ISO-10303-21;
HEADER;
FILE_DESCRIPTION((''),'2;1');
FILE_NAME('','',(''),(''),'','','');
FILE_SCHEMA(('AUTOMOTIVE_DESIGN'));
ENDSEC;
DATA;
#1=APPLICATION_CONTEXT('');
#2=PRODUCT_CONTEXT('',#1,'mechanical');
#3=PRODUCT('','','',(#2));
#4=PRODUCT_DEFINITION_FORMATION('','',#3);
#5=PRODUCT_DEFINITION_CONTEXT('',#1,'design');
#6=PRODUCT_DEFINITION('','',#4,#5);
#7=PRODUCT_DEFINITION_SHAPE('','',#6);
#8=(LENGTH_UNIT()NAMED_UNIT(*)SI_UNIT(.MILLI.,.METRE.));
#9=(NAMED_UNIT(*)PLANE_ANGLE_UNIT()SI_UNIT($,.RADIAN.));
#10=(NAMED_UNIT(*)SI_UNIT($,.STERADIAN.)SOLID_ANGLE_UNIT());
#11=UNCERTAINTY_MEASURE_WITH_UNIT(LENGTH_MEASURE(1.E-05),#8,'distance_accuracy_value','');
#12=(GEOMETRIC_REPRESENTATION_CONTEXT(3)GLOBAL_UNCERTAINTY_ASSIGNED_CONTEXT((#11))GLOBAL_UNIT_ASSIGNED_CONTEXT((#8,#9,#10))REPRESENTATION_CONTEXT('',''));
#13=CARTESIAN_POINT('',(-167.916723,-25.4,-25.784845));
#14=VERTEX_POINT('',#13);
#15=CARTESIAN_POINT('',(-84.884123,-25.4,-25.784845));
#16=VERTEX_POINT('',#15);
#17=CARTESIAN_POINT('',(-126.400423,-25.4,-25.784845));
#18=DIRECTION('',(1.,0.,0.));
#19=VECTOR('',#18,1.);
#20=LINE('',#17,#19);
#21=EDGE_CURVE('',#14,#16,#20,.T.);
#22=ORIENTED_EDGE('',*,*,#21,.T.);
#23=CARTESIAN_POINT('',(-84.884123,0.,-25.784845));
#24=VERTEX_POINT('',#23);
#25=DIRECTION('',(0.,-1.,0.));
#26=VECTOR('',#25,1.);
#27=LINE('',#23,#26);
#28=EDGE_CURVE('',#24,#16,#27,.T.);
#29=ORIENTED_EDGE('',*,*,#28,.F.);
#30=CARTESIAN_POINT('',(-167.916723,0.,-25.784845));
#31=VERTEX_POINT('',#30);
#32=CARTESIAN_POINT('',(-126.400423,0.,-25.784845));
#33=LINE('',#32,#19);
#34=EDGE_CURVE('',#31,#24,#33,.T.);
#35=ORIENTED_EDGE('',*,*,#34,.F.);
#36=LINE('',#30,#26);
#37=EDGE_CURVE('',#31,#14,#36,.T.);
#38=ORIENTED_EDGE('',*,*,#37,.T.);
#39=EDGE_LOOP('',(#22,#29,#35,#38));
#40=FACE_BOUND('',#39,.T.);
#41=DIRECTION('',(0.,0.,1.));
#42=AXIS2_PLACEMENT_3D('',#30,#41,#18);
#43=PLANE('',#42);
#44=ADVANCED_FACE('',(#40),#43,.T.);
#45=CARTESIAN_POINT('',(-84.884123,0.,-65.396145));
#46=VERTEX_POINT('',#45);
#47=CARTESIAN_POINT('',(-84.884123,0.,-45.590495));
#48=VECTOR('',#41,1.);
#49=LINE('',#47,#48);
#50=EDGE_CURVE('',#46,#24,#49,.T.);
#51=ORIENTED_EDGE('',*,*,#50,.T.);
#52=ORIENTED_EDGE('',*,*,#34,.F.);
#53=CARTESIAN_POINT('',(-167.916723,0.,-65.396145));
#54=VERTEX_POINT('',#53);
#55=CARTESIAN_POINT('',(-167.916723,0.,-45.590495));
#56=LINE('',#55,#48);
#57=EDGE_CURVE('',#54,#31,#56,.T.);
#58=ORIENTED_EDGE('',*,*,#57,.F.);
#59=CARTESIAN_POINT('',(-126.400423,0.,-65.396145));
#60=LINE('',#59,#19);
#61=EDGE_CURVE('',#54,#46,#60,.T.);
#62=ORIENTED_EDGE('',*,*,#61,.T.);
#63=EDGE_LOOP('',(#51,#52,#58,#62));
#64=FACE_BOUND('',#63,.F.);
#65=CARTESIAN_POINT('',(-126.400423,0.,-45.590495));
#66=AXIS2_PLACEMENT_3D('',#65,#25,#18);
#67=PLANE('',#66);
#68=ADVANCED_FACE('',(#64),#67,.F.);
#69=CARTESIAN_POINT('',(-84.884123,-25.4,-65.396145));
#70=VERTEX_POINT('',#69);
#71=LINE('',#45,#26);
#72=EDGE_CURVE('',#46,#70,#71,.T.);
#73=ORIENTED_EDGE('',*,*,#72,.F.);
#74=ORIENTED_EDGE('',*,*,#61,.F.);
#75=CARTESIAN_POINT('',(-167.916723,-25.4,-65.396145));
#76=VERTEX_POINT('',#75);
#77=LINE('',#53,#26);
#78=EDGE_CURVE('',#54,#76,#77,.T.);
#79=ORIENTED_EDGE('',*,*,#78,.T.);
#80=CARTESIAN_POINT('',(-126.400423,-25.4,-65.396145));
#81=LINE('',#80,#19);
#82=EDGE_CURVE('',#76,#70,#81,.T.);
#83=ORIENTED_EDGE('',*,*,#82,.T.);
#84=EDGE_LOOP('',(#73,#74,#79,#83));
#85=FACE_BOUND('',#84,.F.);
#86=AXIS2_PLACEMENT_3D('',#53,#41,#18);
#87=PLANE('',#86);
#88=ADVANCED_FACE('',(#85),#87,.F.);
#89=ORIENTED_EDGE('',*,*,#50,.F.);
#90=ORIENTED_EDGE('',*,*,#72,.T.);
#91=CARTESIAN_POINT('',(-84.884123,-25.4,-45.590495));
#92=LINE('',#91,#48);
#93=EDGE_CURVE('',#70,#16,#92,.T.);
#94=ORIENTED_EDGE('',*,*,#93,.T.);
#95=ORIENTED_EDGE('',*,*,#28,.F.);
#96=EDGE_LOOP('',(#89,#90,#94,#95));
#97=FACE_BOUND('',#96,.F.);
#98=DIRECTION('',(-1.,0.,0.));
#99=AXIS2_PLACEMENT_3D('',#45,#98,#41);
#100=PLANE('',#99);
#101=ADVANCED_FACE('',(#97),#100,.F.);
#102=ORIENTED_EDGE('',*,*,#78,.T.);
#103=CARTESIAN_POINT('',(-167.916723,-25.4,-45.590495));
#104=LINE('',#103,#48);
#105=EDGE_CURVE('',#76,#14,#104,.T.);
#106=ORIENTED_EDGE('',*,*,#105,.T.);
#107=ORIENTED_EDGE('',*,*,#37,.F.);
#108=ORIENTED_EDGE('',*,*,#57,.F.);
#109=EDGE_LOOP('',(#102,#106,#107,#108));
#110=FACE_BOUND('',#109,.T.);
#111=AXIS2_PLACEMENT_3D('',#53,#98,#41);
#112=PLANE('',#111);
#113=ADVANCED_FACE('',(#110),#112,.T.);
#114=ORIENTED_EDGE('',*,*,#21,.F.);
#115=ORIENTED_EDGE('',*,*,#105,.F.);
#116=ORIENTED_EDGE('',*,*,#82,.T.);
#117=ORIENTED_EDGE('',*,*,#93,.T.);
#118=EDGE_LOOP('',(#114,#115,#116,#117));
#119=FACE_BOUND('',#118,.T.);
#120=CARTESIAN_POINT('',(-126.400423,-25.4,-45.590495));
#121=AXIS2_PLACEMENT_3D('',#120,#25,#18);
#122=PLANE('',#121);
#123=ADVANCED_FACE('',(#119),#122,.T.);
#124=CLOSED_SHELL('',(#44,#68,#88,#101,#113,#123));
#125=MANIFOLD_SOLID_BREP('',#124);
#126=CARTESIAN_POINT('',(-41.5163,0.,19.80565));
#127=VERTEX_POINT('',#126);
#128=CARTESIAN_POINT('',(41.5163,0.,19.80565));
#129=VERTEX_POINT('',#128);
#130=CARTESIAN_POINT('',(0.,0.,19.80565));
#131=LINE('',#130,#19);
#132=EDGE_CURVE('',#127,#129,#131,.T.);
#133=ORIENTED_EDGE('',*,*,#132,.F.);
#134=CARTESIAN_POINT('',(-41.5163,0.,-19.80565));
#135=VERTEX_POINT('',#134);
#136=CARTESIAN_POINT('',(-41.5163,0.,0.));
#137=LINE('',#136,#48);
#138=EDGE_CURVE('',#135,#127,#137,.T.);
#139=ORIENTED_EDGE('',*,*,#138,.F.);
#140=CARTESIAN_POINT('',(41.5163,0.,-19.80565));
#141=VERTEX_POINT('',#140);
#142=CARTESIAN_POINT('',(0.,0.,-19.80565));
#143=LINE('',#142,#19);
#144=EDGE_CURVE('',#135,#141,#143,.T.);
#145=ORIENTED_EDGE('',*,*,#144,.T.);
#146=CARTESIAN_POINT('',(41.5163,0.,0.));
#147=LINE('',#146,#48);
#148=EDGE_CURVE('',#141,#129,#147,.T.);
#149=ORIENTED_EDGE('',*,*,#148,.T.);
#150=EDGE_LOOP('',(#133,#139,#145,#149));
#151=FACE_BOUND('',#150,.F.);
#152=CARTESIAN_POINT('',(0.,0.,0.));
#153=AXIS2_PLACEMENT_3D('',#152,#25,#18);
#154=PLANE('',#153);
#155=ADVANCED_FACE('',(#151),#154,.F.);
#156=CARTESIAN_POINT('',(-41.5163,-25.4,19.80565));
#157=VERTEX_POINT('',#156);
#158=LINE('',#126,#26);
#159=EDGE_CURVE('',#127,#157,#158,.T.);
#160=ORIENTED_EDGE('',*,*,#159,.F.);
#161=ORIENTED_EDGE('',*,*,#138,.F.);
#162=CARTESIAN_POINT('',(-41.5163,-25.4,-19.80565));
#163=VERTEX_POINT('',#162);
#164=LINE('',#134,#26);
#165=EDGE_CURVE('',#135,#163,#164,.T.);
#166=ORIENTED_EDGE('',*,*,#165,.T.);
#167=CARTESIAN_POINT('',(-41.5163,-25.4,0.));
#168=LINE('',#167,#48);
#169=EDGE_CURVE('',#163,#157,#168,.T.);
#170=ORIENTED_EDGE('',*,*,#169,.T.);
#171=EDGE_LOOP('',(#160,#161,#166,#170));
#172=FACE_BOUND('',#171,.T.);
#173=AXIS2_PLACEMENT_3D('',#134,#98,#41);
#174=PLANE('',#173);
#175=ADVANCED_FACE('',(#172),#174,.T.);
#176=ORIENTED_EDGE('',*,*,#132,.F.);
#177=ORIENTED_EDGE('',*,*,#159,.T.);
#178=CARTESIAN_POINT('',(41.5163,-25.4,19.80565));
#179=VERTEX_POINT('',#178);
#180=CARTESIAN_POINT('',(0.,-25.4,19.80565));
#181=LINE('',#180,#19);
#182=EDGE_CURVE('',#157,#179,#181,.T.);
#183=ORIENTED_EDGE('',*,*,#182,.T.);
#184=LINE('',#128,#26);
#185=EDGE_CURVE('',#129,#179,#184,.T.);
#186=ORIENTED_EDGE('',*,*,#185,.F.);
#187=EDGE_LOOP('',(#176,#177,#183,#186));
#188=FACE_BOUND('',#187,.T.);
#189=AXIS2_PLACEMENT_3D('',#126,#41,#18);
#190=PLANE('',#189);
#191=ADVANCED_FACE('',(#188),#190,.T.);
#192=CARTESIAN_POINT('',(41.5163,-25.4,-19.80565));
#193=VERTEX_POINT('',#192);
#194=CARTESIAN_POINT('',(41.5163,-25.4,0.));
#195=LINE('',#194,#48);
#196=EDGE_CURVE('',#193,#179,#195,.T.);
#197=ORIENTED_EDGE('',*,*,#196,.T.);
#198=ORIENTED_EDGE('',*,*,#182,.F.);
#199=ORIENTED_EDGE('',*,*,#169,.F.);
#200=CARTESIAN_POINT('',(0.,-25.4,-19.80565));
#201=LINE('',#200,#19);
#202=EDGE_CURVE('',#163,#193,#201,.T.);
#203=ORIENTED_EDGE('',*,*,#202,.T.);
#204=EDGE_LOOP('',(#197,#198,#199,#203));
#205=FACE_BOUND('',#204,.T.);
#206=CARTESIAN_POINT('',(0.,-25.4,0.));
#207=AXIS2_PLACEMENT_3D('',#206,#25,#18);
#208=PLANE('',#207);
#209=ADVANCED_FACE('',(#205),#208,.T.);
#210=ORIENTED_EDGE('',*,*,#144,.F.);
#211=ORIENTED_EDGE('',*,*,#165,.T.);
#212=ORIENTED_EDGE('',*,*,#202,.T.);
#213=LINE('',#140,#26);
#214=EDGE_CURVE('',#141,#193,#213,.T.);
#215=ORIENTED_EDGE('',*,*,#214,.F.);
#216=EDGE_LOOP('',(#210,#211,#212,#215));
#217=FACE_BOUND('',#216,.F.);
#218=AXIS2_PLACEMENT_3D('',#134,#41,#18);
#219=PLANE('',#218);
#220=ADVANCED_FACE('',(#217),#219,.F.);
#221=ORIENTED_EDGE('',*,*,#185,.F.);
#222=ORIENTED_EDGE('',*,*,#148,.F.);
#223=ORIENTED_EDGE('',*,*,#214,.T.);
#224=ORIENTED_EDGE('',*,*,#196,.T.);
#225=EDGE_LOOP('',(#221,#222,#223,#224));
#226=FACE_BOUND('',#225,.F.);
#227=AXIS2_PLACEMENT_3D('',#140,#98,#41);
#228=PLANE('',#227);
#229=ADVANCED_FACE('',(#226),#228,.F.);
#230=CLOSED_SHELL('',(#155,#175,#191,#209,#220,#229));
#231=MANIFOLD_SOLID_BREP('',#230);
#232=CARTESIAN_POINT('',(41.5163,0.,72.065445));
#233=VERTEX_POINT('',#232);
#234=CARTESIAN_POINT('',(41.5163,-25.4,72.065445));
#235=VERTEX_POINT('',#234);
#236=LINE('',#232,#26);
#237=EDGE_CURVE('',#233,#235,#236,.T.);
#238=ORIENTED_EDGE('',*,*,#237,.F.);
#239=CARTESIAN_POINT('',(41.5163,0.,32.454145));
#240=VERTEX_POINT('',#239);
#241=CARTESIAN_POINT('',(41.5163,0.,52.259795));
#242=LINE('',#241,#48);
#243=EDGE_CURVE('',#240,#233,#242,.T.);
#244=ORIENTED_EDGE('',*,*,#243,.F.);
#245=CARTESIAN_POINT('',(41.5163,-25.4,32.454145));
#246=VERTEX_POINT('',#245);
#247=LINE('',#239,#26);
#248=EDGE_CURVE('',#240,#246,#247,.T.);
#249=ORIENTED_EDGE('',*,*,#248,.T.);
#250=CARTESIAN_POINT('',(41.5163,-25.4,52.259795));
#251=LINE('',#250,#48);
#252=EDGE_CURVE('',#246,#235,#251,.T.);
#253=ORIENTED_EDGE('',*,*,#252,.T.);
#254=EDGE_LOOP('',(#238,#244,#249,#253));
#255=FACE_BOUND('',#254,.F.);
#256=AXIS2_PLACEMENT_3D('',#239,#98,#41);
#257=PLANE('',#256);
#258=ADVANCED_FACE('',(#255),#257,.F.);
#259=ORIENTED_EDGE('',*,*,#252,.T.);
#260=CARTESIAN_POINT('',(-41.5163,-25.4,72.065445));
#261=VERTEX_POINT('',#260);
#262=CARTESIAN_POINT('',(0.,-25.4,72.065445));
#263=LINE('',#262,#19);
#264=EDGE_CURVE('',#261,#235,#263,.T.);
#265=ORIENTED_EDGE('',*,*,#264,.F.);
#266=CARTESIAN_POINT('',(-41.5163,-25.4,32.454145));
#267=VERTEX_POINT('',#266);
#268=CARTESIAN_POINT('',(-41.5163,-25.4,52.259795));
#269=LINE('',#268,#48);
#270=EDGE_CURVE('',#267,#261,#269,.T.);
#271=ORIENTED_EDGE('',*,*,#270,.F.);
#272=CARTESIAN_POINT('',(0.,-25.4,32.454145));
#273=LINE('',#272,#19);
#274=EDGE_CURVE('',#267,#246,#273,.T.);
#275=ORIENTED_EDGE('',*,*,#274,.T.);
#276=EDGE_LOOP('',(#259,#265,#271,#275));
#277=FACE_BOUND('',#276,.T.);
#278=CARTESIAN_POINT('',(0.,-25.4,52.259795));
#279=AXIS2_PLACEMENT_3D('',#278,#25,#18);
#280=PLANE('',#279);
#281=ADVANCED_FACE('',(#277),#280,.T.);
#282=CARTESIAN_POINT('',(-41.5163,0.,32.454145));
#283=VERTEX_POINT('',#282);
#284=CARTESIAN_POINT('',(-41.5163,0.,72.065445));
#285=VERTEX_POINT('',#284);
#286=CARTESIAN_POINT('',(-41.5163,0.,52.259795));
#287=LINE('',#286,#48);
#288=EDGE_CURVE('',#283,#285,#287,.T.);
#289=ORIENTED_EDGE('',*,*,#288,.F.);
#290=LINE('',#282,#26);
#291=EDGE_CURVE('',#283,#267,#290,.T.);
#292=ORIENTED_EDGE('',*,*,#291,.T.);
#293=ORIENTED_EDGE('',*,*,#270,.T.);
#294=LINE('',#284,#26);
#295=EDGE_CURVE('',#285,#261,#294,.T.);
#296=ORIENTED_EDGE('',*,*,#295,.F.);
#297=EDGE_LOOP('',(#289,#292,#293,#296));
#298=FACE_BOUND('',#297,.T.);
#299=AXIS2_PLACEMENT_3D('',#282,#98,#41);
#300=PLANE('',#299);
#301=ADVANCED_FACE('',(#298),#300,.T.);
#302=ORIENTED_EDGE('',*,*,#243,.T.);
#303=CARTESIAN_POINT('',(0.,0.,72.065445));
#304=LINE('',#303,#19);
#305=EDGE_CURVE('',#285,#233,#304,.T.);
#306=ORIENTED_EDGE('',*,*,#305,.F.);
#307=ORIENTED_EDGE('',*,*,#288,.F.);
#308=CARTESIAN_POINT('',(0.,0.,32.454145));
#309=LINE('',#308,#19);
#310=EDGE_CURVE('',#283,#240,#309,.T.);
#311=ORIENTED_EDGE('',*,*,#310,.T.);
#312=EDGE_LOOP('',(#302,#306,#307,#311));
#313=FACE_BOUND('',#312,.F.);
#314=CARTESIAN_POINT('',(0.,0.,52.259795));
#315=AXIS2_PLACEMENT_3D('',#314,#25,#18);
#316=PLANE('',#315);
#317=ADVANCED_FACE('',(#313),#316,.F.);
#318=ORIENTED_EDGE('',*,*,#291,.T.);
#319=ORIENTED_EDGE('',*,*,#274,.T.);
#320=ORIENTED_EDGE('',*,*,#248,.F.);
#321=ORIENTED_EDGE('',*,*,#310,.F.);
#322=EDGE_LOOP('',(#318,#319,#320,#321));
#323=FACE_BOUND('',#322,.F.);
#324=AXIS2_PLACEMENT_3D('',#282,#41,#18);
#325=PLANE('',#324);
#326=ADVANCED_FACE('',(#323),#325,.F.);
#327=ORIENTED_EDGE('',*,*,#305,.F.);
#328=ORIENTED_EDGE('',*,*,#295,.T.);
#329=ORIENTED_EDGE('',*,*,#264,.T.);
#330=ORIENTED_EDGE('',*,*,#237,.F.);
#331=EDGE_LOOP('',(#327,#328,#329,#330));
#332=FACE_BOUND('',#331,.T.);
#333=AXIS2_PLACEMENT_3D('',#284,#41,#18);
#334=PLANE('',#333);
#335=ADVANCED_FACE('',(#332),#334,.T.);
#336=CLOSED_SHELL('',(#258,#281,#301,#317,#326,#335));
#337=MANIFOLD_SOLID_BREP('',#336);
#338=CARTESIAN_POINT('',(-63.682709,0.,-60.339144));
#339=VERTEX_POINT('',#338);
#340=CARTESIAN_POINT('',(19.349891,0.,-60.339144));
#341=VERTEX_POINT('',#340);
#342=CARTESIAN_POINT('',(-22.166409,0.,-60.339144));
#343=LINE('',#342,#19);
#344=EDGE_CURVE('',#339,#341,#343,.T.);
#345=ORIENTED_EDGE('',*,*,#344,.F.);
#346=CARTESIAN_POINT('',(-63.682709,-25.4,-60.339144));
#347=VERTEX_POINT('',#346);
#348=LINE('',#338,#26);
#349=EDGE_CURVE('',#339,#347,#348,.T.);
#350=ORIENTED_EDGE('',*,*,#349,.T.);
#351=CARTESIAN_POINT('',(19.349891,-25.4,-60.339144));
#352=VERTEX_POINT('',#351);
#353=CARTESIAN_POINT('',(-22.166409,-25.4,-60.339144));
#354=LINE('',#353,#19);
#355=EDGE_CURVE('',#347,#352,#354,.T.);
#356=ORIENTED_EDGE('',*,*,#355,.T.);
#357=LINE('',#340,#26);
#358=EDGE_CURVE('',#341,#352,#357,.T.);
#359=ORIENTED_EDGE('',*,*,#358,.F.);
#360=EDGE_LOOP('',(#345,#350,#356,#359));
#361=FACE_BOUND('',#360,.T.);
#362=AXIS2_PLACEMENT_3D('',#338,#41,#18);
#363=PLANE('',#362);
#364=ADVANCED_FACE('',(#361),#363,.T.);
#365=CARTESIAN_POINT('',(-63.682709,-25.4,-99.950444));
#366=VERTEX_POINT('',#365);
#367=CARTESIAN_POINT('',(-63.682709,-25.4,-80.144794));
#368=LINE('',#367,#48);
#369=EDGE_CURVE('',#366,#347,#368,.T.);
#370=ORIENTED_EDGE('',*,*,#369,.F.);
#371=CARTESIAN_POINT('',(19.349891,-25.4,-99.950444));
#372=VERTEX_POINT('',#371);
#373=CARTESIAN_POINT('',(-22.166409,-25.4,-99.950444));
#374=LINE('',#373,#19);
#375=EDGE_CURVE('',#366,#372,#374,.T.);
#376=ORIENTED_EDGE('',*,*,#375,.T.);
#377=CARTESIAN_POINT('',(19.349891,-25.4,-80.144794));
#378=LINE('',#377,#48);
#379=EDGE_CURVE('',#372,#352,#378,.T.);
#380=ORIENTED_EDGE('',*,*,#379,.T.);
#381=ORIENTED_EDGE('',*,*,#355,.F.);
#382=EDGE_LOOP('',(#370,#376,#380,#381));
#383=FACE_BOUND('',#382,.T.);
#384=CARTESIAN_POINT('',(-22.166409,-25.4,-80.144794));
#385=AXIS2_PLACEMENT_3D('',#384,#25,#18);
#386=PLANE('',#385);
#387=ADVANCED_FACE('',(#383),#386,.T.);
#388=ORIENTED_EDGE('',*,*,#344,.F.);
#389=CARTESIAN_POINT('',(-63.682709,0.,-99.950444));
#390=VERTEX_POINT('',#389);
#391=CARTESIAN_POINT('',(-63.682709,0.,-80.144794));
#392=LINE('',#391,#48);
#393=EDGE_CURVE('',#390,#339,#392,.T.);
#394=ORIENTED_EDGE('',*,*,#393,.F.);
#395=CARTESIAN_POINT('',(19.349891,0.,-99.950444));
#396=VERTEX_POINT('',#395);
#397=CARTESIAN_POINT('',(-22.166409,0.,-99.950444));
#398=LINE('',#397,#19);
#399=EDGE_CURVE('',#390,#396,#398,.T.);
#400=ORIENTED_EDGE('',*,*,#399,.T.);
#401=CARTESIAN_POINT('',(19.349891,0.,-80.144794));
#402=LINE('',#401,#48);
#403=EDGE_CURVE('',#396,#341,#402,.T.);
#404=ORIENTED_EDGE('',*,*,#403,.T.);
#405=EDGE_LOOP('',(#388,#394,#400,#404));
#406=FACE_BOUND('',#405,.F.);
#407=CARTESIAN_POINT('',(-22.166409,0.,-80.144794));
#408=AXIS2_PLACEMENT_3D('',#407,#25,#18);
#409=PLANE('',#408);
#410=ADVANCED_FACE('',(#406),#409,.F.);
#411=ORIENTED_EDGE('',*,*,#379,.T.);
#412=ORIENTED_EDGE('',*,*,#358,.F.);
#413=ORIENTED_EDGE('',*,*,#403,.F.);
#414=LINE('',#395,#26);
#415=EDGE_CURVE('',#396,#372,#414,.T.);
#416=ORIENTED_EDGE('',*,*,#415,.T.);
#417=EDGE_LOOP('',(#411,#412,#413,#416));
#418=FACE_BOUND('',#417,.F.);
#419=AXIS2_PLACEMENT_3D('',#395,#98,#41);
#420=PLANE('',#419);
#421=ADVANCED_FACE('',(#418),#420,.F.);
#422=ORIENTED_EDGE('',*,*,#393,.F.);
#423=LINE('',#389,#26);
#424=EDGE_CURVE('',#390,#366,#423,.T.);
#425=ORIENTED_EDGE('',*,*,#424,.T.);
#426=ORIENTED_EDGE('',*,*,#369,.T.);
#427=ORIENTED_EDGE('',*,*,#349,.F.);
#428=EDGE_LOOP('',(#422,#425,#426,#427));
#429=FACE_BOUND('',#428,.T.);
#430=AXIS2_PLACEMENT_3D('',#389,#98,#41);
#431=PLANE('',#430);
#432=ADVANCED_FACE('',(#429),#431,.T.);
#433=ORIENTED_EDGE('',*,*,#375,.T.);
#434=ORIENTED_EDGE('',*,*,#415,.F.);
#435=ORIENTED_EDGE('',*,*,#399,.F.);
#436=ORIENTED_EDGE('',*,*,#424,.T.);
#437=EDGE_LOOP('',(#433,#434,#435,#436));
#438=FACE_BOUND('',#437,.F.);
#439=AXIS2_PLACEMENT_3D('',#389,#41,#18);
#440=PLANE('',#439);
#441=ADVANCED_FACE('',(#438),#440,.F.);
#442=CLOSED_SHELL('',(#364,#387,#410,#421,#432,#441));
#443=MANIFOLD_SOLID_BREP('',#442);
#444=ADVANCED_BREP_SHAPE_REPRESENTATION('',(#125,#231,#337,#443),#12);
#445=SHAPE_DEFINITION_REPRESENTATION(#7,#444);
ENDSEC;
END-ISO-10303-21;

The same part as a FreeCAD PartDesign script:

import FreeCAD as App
import Part
import Sketcher
Q = App.Units.Quantity

doc = App.newDocument("Part")
body = doc.addObject("PartDesign::Body", "Body")
body.AllowCompound = True

sketch1 = body.newObject("Sketcher::SketchObject", "Sketch")
sketch1.AttachmentSupport = (doc.getObject("XZ_Plane"), [""])
sketch1.MapMode = "FlatFace"
sketch1.addGeometry(Part.LineSegment(App.Vector(-42, 20, 0), App.Vector(-42, -20, 0)), False)
sketch1.addGeometry(Part.LineSegment(App.Vector(-42, -20, 0), App.Vector(42, -20, 0)), False)
sketch1.addGeometry(Part.LineSegment(App.Vector(42, -20, 0), App.Vector(42, 20, 0)), False)
sketch1.addGeometry(Part.LineSegment(App.Vector(42, 20, 0), App.Vector(-42, 20, 0)), False)
sketch1.addGeometry(Part.LineSegment(App.Vector(-42, 72, 0), App.Vector(-42, 32, 0)), False)
sketch1.addGeometry(Part.LineSegment(App.Vector(-42, 32, 0), App.Vector(42, 32, 0)), False)
sketch1.addGeometry(Part.LineSegment(App.Vector(42, 32, 0), App.Vector(42, 72, 0)), False)
sketch1.addGeometry(Part.LineSegment(App.Vector(42, 72, 0), App.Vector(-42, 72, 0)), False)
sketch1.addGeometry(Part.LineSegment(App.Vector(-64, -60, 0), App.Vector(-64, -100, 0)), False)
sketch1.addGeometry(Part.LineSegment(App.Vector(-64, -100, 0), App.Vector(19, -100, 0)), False)
sketch1.addGeometry(Part.LineSegment(App.Vector(19, -100, 0), App.Vector(19, -60, 0)), False)
sketch1.addGeometry(Part.LineSegment(App.Vector(19, -60, 0), App.Vector(-64, -60, 0)), False)
sketch1.addGeometry(Part.LineSegment(App.Vector(-168, -26, 0), App.Vector(-168, -65, 0)), False)
sketch1.addGeometry(Part.LineSegment(App.Vector(-168, -65, 0), App.Vector(-85, -65, 0)), False)
sketch1.addGeometry(Part.LineSegment(App.Vector(-85, -65, 0), App.Vector(-85, -26, 0)), False)
sketch1.addGeometry(Part.LineSegment(App.Vector(-85, -26, 0), App.Vector(-168, -26, 0)), False)
sketch1.addConstraint(Sketcher.Constraint("Coincident", 0, 2, 1, 1))
sketch1.addConstraint(Sketcher.Constraint("Coincident", 1, 2, 2, 1))
sketch1.addConstraint(Sketcher.Constraint("Coincident", 2, 2, 3, 1))
sketch1.addConstraint(Sketcher.Constraint("Coincident", 3, 2, 0, 1))
sketch1.addConstraint(Sketcher.Constraint("Coincident", 4, 2, 5, 1))
sketch1.addConstraint(Sketcher.Constraint("Coincident", 5, 2, 6, 1))
sketch1.addConstraint(Sketcher.Constraint("Coincident", 6, 2, 7, 1))
sketch1.addConstraint(Sketcher.Constraint("Coincident", 7, 2, 4, 1))
sketch1.addConstraint(Sketcher.Constraint("Coincident", 8, 2, 9, 1))
sketch1.addConstraint(Sketcher.Constraint("Coincident", 9, 2, 10, 1))
sketch1.addConstraint(Sketcher.Constraint("Coincident", 10, 2, 11, 1))
sketch1.addConstraint(Sketcher.Constraint("Coincident", 11, 2, 8, 1))
sketch1.addConstraint(Sketcher.Constraint("Coincident", 12, 2, 13, 1))
sketch1.addConstraint(Sketcher.Constraint("Coincident", 13, 2, 14, 1))
sketch1.addConstraint(Sketcher.Constraint("Coincident", 14, 2, 15, 1))
sketch1.addConstraint(Sketcher.Constraint("Coincident", 15, 2, 12, 1))
sketch1.addConstraint(Sketcher.Constraint("Vertical", 0))
sketch1.addConstraint(Sketcher.Constraint("Horizontal", 1))
sketch1.addConstraint(Sketcher.Constraint("Vertical", 2))
sketch1.addConstraint(Sketcher.Constraint("Horizontal", 3))
sketch1.addConstraint(Sketcher.Constraint("Vertical", 4))
sketch1.addConstraint(Sketcher.Constraint("Horizontal", 5))
sketch1.addConstraint(Sketcher.Constraint("Vertical", 6))
sketch1.addConstraint(Sketcher.Constraint("Horizontal", 7))
sketch1.addConstraint(Sketcher.Constraint("Vertical", 8))
sketch1.addConstraint(Sketcher.Constraint("Horizontal", 9))
sketch1.addConstraint(Sketcher.Constraint("Vertical", 10))
sketch1.addConstraint(Sketcher.Constraint("Horizontal", 11))
sketch1.addConstraint(Sketcher.Constraint("Vertical", 12))
sketch1.addConstraint(Sketcher.Constraint("Horizontal", 13))
sketch1.addConstraint(Sketcher.Constraint("Vertical", 14))
sketch1.addConstraint(Sketcher.Constraint("Horizontal", 15))
sketch1.addConstraint(Sketcher.Constraint("Symmetric", 0, 2, 2, 2, -1, 1))
sketch1.addConstraint(Sketcher.Constraint("Vertical", 3, 2, 4, 2))
sketch1.addConstraint(Sketcher.Constraint("Vertical", 2, 2, 5, 2))
sketch1.addConstraint(Sketcher.Constraint("Equal", 7, 9))
sketch1.addConstraint(Sketcher.Constraint("Equal", 11, 13))
sketch1.addConstraint(Sketcher.Constraint("Equal", 2, 4))
sketch1.addConstraint(Sketcher.Constraint("Equal", 6, 8))
sketch1.addConstraint(Sketcher.Constraint("Equal", 10, 12))
sketch1.addConstraint(Sketcher.Constraint("DistanceX", 1, 1, 1, 2, Q("3.269 in")))
sketch1.addConstraint(Sketcher.Constraint("DistanceY", 0, 2, 0, 1, Q("1.5595 in")))
sketch1.addConstraint(Sketcher.Constraint("DistanceY", 12, 2, 11, 2, Q("5.057001 mm")))
sketch1.addConstraint(Sketcher.Constraint("DistanceX", 8, 2, -1, 1, Q("63.682709 mm")))
sketch1.addConstraint(Sketcher.Constraint("DistanceY", 8, 2, 4, 2, Q("132.404589 mm")))
sketch1.addConstraint(Sketcher.Constraint("DistanceY", -1, 1, 4, 2, Q("32.454145 mm")))
sketch1.addConstraint(Sketcher.Constraint("DistanceX", 12, 2, -1, 1, Q("167.916723 mm")))
pad1 = body.newObject("PartDesign::Pad", "Pad")
pad1.Profile = sketch1
pad1.Length = Q("1 in")

doc.recompute()
